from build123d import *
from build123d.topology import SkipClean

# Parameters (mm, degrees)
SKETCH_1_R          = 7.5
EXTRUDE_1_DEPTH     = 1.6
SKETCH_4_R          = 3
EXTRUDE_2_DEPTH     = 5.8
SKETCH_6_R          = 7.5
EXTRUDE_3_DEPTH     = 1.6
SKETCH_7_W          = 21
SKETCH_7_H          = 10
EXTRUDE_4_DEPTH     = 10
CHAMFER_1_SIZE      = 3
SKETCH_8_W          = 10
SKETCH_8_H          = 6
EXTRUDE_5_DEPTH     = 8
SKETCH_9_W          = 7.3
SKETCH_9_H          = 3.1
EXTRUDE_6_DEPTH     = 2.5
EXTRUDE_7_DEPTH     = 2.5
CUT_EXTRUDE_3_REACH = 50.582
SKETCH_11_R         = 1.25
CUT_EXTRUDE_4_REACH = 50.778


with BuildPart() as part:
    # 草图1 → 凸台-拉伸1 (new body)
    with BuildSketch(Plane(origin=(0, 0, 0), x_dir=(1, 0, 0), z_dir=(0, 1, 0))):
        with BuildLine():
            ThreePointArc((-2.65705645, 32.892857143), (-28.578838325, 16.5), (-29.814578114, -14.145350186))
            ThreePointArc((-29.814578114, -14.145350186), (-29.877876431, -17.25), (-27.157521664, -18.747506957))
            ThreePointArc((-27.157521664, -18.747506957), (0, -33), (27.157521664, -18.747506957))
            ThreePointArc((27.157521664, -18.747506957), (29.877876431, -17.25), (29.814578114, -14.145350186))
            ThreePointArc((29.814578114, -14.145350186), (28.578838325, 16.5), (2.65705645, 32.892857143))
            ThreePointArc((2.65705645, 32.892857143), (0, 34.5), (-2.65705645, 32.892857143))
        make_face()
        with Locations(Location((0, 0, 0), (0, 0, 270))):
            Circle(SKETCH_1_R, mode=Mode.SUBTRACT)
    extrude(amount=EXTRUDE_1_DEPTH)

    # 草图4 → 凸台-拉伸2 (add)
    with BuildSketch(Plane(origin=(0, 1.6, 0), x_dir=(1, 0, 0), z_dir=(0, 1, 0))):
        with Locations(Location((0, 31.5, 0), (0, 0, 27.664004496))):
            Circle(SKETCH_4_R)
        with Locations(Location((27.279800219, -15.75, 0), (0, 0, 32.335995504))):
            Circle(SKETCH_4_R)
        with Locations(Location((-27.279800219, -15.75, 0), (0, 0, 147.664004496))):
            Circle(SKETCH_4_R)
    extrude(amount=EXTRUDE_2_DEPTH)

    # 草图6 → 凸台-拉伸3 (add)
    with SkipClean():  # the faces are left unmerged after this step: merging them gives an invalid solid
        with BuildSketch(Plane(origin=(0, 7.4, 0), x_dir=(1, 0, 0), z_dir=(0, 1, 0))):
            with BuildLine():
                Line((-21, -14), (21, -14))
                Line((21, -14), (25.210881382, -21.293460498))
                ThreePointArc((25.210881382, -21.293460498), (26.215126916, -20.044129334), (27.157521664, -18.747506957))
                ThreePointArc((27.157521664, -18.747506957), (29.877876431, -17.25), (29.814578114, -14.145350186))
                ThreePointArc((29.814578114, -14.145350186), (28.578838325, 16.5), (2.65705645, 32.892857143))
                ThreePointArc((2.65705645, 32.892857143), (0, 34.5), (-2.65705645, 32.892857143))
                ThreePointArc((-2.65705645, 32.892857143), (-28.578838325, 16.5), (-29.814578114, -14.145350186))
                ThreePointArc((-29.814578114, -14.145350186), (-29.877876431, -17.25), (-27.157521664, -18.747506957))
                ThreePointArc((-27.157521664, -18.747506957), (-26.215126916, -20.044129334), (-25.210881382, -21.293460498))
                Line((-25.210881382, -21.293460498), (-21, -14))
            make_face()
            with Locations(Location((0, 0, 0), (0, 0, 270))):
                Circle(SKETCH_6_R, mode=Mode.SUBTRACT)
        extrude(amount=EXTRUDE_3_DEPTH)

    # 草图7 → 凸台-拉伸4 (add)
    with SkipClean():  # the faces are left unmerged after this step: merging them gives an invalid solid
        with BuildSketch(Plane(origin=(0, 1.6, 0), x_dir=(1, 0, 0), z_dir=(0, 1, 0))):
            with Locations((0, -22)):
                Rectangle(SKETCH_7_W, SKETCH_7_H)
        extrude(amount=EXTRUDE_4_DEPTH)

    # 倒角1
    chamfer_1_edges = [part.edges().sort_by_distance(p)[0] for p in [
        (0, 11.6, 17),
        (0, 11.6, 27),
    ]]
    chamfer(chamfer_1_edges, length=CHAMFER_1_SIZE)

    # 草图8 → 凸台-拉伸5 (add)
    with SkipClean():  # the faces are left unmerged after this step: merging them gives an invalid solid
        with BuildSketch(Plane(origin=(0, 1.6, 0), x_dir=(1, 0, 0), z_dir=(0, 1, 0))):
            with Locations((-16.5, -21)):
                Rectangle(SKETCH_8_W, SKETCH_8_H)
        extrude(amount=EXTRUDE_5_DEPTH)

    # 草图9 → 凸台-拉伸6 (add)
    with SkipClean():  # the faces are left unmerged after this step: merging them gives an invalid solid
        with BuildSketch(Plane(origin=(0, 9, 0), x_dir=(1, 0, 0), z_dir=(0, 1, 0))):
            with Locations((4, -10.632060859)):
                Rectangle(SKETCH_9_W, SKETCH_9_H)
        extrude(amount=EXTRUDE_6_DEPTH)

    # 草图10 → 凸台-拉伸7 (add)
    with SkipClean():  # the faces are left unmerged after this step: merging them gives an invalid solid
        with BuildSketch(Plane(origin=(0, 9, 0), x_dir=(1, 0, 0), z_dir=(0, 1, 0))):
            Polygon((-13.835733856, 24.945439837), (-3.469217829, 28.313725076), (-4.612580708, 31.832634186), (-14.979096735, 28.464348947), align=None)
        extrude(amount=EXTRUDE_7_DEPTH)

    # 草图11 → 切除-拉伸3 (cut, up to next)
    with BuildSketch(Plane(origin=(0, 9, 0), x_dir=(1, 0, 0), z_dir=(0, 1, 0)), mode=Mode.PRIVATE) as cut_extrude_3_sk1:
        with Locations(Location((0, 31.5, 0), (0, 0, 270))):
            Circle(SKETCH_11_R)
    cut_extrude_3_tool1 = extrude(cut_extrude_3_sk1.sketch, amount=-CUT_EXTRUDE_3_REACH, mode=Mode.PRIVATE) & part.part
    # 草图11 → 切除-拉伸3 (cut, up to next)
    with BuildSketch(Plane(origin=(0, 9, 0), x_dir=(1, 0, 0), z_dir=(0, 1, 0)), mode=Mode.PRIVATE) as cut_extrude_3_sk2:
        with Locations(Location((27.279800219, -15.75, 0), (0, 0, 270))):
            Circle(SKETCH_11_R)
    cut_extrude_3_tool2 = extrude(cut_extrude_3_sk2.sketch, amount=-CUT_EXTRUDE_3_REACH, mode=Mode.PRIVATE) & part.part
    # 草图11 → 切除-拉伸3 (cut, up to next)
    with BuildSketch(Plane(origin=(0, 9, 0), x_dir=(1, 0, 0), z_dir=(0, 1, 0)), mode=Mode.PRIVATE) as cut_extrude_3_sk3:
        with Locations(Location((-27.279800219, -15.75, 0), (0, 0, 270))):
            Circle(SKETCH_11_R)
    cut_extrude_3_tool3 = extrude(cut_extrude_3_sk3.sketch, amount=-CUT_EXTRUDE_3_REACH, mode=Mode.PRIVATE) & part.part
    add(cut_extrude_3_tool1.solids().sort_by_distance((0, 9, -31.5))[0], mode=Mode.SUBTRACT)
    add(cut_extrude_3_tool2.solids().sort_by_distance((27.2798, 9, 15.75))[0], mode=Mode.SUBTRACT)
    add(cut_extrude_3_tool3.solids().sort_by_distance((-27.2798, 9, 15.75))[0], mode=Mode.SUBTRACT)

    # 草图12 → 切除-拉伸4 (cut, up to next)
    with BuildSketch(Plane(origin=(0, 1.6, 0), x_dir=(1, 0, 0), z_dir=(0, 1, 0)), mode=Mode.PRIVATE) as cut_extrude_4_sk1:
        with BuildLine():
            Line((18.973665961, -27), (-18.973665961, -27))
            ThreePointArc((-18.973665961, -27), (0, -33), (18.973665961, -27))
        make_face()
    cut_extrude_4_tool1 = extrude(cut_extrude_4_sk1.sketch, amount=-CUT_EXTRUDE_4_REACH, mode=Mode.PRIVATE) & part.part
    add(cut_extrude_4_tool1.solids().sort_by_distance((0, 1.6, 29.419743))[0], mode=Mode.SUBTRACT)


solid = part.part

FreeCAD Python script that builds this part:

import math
import FreeCAD as App
import Part
import Sketcher

V = App.Vector
Q = App.Units.Quantity


def edges_at(feature, points):
    """Names of the edges that pass closest to the given points."""
    edges = feature.Shape.Edges
    near = lambda p: min(range(len(edges)), key=lambda i: edges[i].distToShape(Part.Vertex(*p))[0])
    return sorted({f"Edge{near(p) + 1}" for p in points})

doc = App.newDocument("Part")
body = doc.addObject("PartDesign::Body", "Body")

# Sketch on XZ plane
sketch1 = body.newObject("Sketcher::SketchObject", "Sketch")
sketch1.AttachmentSupport = (doc.getObject("XZ_Plane"), [""])
sketch1.MapMode = "FlatFace"
sketch1.addGeometry(Part.ArcOfCircle(Part.Circle(V(0, 0, 0), V(0, 0, 1), 33), math.radians(155), math.radians(265)), False)
sketch1.addGeometry(Part.ArcOfCircle(Part.Circle(V(-27.3, 15.8, 0), V(0, 0, 1), 3), math.radians(88), math.radians(212)), False)
sketch1.addGeometry(Part.ArcOfCircle(Part.Circle(V(0, 0, 0), V(0, 0, 1), 33), math.radians(35), math.radians(145)), False)
sketch1.addGeometry(Part.ArcOfCircle(Part.Circle(V(27.3, 15.8, 0), V(0, 0, 1), 3), math.radians(-32), math.radians(92)), False)
sketch1.addGeometry(Part.ArcOfCircle(Part.Circle(V(0, 0, 0), V(0, 0, 1), 33), math.radians(-85), math.radians(25)), False)
sketch1.addGeometry(Part.ArcOfCircle(Part.Circle(V(0, -31.5, 0), V(0, 0, 1), 3), math.radians(-152), math.radians(-28)), False)
sketch1.addGeometry(Part.Circle(V(0, 0, 0), V(0, 0, 1), 7.5), False)
sketch1.addConstraint(Sketcher.Constraint("Coincident", 0, 1, 1, 2))
sketch1.addConstraint(Sketcher.Constraint("Coincident", 1, 1, 2, 2))
sketch1.addConstraint(Sketcher.Constraint("Coincident", 2, 1, 3, 2))
sketch1.addConstraint(Sketcher.Constraint("Coincident", 3, 1, 4, 2))
sketch1.addConstraint(Sketcher.Constraint("Coincident", 4, 1, 5, 2))
sketch1.addConstraint(Sketcher.Constraint("Coincident", 5, 1, 0, 2))
sketch1.addConstraint(Sketcher.Constraint("Coincident", 0, 3, -1, 1))
sketch1.addConstraint(Sketcher.Constraint("Coincident", 2, 3, -1, 1))
sketch1.addConstraint(Sketcher.Constraint("Coincident", 4, 3, -1, 1))
sketch1.addConstraint(Sketcher.Constraint("Coincident", 6, 3, -1, 1))
sketch1.addConstraint(Sketcher.Constraint("Equal", 0, 2))
sketch1.addConstraint(Sketcher.Constraint("Equal", 1, 3))
sketch1.addConstraint(Sketcher.Constraint("Equal", 2, 4))
sketch1.addConstraint(Sketcher.Constraint("Equal", 3, 5))
sketch1.addConstraint(Sketcher.Constraint("Symmetric", 1, 3, 3, 3, -2))
sketch1.addConstraint(Sketcher.Constraint("PointOnObject", 5, 3, -2))
sketch1.addConstraint(Sketcher.Constraint("Diameter", 6, 15.0))
sketch1.addConstraint(Sketcher.Constraint("Radius", 0, 33.0))
sketch1.addConstraint(Sketcher.Constraint("Radius", 1, 3.0))
sketch1.addConstraint(Sketcher.Constraint("DistanceY", 5, 3, -1, 1, 31.5))
sketch1.addConstraint(Sketcher.Constraint("DistanceY", -1, 1, 1, 3, 15.75))
sketch1.addConstraint(Sketcher.Constraint("DistanceX", 1, 3, -1, 1, 27.2798))
pad1 = body.newObject("PartDesign::Pad", "Pad")
pad1.Profile = sketch1
pad1.Length = 1.6
pad1.Reversed = True

# Sketch on XZ plane
sketch2 = body.newObject("Sketcher::SketchObject", "Sketch001")
sketch2.AttachmentSupport = (doc.getObject("XZ_Plane"), [""])
sketch2.MapMode = "FlatFace"
sketch2.AttachmentOffset = App.Placement(V(0, 0, -1.6), App.Rotation())
sketch2.addGeometry(Part.Circle(V(0, -31.5, 0), V(0, 0, 1), 3), False)
sketch2.addGeometry(Part.Circle(V(27.3, 15.8, 0), V(0, 0, 1), 3), False)
sketch2.addGeometry(Part.Circle(V(-27.3, 15.8, 0), V(0, 0, 1), 3), False)
sketch2.addConstraint(Sketcher.Constraint("Equal", 0, 1))
sketch2.addConstraint(Sketcher.Constraint("Equal", 1, 2))
sketch2.addConstraint(Sketcher.Constraint("Symmetric", 1, 3, 2, 3, -2))
sketch2.addConstraint(Sketcher.Constraint("PointOnObject", 0, 3, -2))
sketch2.addConstraint(Sketcher.Constraint("Diameter", 0, 6.0))
sketch2.addConstraint(Sketcher.Constraint("DistanceY", 0, 3, -1, 1, 31.5))
sketch2.addConstraint(Sketcher.Constraint("DistanceY", -1, 1, 1, 3, 15.75))
sketch2.addConstraint(Sketcher.Constraint("DistanceX", -1, 1, 1, 3, 27.2798))
pad2 = body.newObject("PartDesign::Pad", "Pad001")
pad2.Profile = sketch2
pad2.Length = 5.8
pad2.Reversed = True

# Sketch on XZ plane
sketch3 = body.newObject("Sketcher::SketchObject", "Sketch002")
sketch3.AttachmentSupport = (doc.getObject("XZ_Plane"), [""])
sketch3.MapMode = "FlatFace"
sketch3.AttachmentOffset = App.Placement(V(0, 0, -7.4), App.Rotation())
sketch3.addGeometry(Part.LineSegment(V(-21, 14, 0), V(21, 14, 0)), False)
sketch3.addGeometry(Part.LineSegment(V(21, 14, 0), V(25.2, 21.3, 0)), False)
sketch3.addGeometry(Part.ArcOfCircle(Part.Circle(V(0, 0, 0), V(0, 0, 1), 33), math.radians(34.62), math.radians(40.18)), False)
sketch3.addGeometry(Part.ArcOfCircle(Part.Circle(V(27.3, 15.8, 0), V(0, 0, 1), 3), math.radians(-32), math.radians(92)), False)
sketch3.addGeometry(Part.ArcOfCircle(Part.Circle(V(0, 0, 0), V(0, 0, 1), 33), math.radians(-85), math.radians(25)), False)
sketch3.addGeometry(Part.ArcOfCircle(Part.Circle(V(0, -31.5, 0), V(0, 0, 1), 3), math.radians(-152), math.radians(-28)), False)
sketch3.addGeometry(Part.ArcOfCircle(Part.Circle(V(0, 0, 0), V(0, 0, 1), 33), math.radians(155), math.radians(265)), False)
sketch3.addGeometry(Part.ArcOfCircle(Part.Circle(V(-27.3, 15.8, 0), V(0, 0, 1), 3), math.radians(88), math.radians(212)), False)
sketch3.addGeometry(Part.ArcOfCircle(Part.Circle(V(0, 0, 0), V(0, 0, 1), 33), math.radians(139.82), math.radians(145.38)), False)
sketch3.addGeometry(Part.LineSegment(V(-25.2, 21.3, 0), V(-21, 14, 0)), False)
sketch3.addGeometry(Part.Circle(V(0, 0, 0), V(0, 0, 1), 7.5), False)
sketch3.addConstraint(Sketcher.Constraint("Coincident", 0, 2, 1, 1))
sketch3.addConstraint(Sketcher.Constraint("Coincident", 1, 2, 2, 2))
sketch3.addConstraint(Sketcher.Constraint("Coincident", 2, 1, 3, 2))
sketch3.addConstraint(Sketcher.Constraint("Coincident", 3, 1, 4, 2))
sketch3.addConstraint(Sketcher.Constraint("Coincident", 4, 1, 5, 2))
sketch3.addConstraint(Sketcher.Constraint("Coincident", 5, 1, 6, 2))
sketch3.addConstraint(Sketcher.Constraint("Coincident", 6, 1, 7, 2))
sketch3.addConstraint(Sketcher.Constraint("Coincident", 7, 1, 8, 2))
sketch3.addConstraint(Sketcher.Constraint("Coincident", 8, 1, 9, 1))
sketch3.addConstraint(Sketcher.Constraint("Coincident", 9, 2, 0, 1))
sketch3.addConstraint(Sketcher.Constraint("Horizontal", 0))
sketch3.addConstraint(Sketcher.Constraint("Coincident", 2, 3, -1, 1))
sketch3.addConstraint(Sketcher.Constraint("Coincident", 4, 3, -1, 1))
sketch3.addConstraint(Sketcher.Constraint("Coincident", 6, 3, -1, 1))
sketch3.addConstraint(Sketcher.Constraint("Coincident", 8, 3, -1, 1))
sketch3.addConstraint(Sketcher.Constraint("Coincident", 10, 3, -1, 1))
sketch3.addConstraint(Sketcher.Constraint("Equal", 2, 4))
sketch3.addConstraint(Sketcher.Constraint("Equal", 3, 5))
sketch3.addConstraint(Sketcher.Constraint("Equal", 4, 6))
sketch3.addConstraint(Sketcher.Constraint("Equal", 5, 7))
sketch3.addConstraint(Sketcher.Constraint("Equal", 6, 8))
sketch3.addConstraint(Sketcher.Constraint("Symmetric", 3, 3, 7, 3, -2))
sketch3.addConstraint(Sketcher.Constraint("PointOnObject", 5, 3, -2))
sketch3.addConstraint(Sketcher.Constraint("Horizontal", 1, 2, 8, 1))
sketch3.addConstraint(Sketcher.Constraint("Equal", 1, 9))
sketch3.addConstraint(Sketcher.Constraint("Diameter", 10, 15.0))
sketch3.addConstraint(Sketcher.Constraint("Radius", 2, 33.000001))
sketch3.addConstraint(Sketcher.Constraint("Radius", 3, 3.0))
sketch3.addConstraint(Sketcher.Constraint("DistanceX", 0, 1, 0, 2, 42.0))
sketch3.addConstraint(Sketcher.Constraint("Angle", 1, Q("60 deg")))
sketch3.addConstraint(Sketcher.Constraint("DistanceY", -1, 1, 0, 2, 14.0))
sketch3.addConstraint(Sketcher.Constraint("DistanceY", 5, 3, -1, 1, 31.5))
sketch3.addConstraint(Sketcher.Constraint("DistanceY", -1, 1, 3, 3, 15.75))
sketch3.addConstraint(Sketcher.Constraint("DistanceX", -1, 1, 3, 3, 27.2798))
pad3 = body.newObject("PartDesign::Pad", "Pad002")
pad3.Profile = sketch3
pad3.Length = 1.6
pad3.Reversed = True

# Sketch on XZ plane
sketch4 = body.newObject("Sketcher::SketchObject", "Sketch003")
sketch4.AttachmentSupport = (doc.getObject("XZ_Plane"), [""])
sketch4.MapMode = "FlatFace"
sketch4.AttachmentOffset = App.Placement(V(0, 0, -1.6), App.Rotation())
sketch4.addGeometry(Part.LineSegment(V(-10, 17, 0), V(-10, 27, 0)), False)
sketch4.addGeometry(Part.LineSegment(V(-10, 27, 0), V(10, 27, 0)), False)
sketch4.addGeometry(Part.LineSegment(V(10, 27, 0), V(10, 17, 0)), False)
sketch4.addGeometry(Part.LineSegment(V(10, 17, 0), V(-10, 17, 0)), False)
sketch4.addConstraint(Sketcher.Constraint("Coincident", 0, 2, 1, 1))
sketch4.addConstraint(Sketcher.Constraint("Coincident", 1, 2, 2, 1))
sketch4.addConstraint(Sketcher.Constraint("Coincident", 2, 2, 3, 1))
sketch4.addConstraint(Sketcher.Constraint("Coincident", 3, 2, 0, 1))
sketch4.addConstraint(Sketcher.Constraint("Vertical", 0))
sketch4.addConstraint(Sketcher.Constraint("Horizontal", 1))
sketch4.addConstraint(Sketcher.Constraint("Vertical", 2))
sketch4.addConstraint(Sketcher.Constraint("Horizontal", 3))
sketch4.addConstraint(Sketcher.Constraint("DistanceX", 1, 1, 1, 2, 21.0))
sketch4.addConstraint(Sketcher.Constraint("DistanceY", 0, 1, 0, 2, 10.0))
sketch4.addConstraint(Sketcher.Constraint("DistanceY", -1, 1, 0, 2, 27.0))
sketch4.addConstraint(Sketcher.Constraint("DistanceX", 0, 2, -1, 1, 10.5))
pad4 = body.newObject("PartDesign::Pad", "Pad003")
pad4.Profile = sketch4
pad4.Length = 10
pad4.Reversed = True
doc.recompute()

chamfer = body.newObject("PartDesign::Chamfer", "Chamfer")
chamfer.Base = (pad4, edges_at(pad4, [(0, 11.6, 17), (0, 11.6, 27)]))
chamfer.Size = 3

# Sketch on XZ plane
sketch5 = body.newObject("Sketcher::SketchObject", "Sketch004")
sketch5.AttachmentSupport = (doc.getObject("XZ_Plane"), [""])
sketch5.MapMode = "FlatFace"
sketch5.AttachmentOffset = App.Placement(V(0, 0, -1.6), App.Rotation())
sketch5.addGeometry(Part.LineSegment(V(-22, 18, 0), V(-22, 24, 0)), False)
sketch5.addGeometry(Part.LineSegment(V(-22, 24, 0), V(-12, 24, 0)), False)
sketch5.addGeometry(Part.LineSegment(V(-12, 24, 0), V(-12, 18, 0)), False)
sketch5.addGeometry(Part.LineSegment(V(-12, 18, 0), V(-22, 18, 0)), False)
sketch5.addConstraint(Sketcher.Constraint("Coincident", 0, 2, 1, 1))
sketch5.addConstraint(Sketcher.Constraint("Coincident", 1, 2, 2, 1))
sketch5.addConstraint(Sketcher.Constraint("Coincident", 2, 2, 3, 1))
sketch5.addConstraint(Sketcher.Constraint("Coincident", 3, 2, 0, 1))
sketch5.addConstraint(Sketcher.Constraint("Vertical", 0))
sketch5.addConstraint(Sketcher.Constraint("Horizontal", 1))
sketch5.addConstraint(Sketcher.Constraint("Vertical", 2))
sketch5.addConstraint(Sketcher.Constraint("Horizontal", 3))
sketch5.addConstraint(Sketcher.Constraint("DistanceX", 1, 1, 1, 2, 10.0))
sketch5.addConstraint(Sketcher.Constraint("DistanceY", 0, 1, 0, 2, 6.0))
sketch5.addConstraint(Sketcher.Constraint("DistanceY", -1, 1, 0, 2, 24.0))
sketch5.addConstraint(Sketcher.Constraint("DistanceX", 0, 2, -1, 1, 21.5))
pad5 = body.newObject("PartDesign::Pad", "Pad004")
pad5.Profile = sketch5
pad5.Length = 8
pad5.Reversed = True

# Sketch on XZ plane
sketch6 = body.newObject("Sketcher::SketchObject", "Sketch005")
sketch6.AttachmentSupport = (doc.getObject("XZ_Plane"), [""])
sketch6.MapMode = "FlatFace"
sketch6.AttachmentOffset = App.Placement(V(0, 0, -9), App.Rotation())
sketch6.addGeometry(Part.LineSegment(V(0.3, 9.1, 0), V(0.3, 12.2, 0)), False)
sketch6.addGeometry(Part.LineSegment(V(0.3, 12.2, 0), V(7.7, 12.2, 0)), False)
sketch6.addGeometry(Part.LineSegment(V(7.7, 12.2, 0), V(7.7, 9.1, 0)), False)
sketch6.addGeometry(Part.LineSegment(V(7.7, 9.1, 0), V(0.3, 9.1, 0)), False)
sketch6.addConstraint(Sketcher.Constraint("Coincident", 0, 2, 1, 1))
sketch6.addConstraint(Sketcher.Constraint("Coincident", 1, 2, 2, 1))
sketch6.addConstraint(Sketcher.Constraint("Coincident", 2, 2, 3, 1))
sketch6.addConstraint(Sketcher.Constraint("Coincident", 3, 2, 0, 1))
sketch6.addConstraint(Sketcher.Constraint("Vertical", 0))
sketch6.addConstraint(Sketcher.Constraint("Horizontal", 1))
sketch6.addConstraint(Sketcher.Constraint("Vertical", 2))
sketch6.addConstraint(Sketcher.Constraint("Horizontal", 3))
sketch6.addConstraint(Sketcher.Constraint("DistanceX", 1, 1, 1, 2, 7.3))
sketch6.addConstraint(Sketcher.Constraint("DistanceY", 0, 1, 0, 2, 3.1))
sketch6.addConstraint(Sketcher.Constraint("DistanceX", -1, 1, 0, 2, 0.35))
sketch6.addConstraint(Sketcher.Constraint("DistanceY", -1, 1, 0, 2, 12.182061))
pad6 = body.newObject("PartDesign::Pad", "Pad005")
pad6.Profile = sketch6
pad6.Length = 2.5
pad6.Reversed = True

# Sketch on XZ plane
sketch7 = body.newObject("Sketcher::SketchObject", "Sketch006")
sketch7.AttachmentSupport = (doc.getObject("XZ_Plane"), [""])
sketch7.MapMode = "FlatFace"
sketch7.AttachmentOffset = App.Placement(V(0, 0, -9), App.Rotation())
sketch7.addGeometry(Part.LineSegment(V(-13.8, -24.9, 0), V(-3.5, -28.3, 0)), False)
sketch7.addGeometry(Part.LineSegment(V(-3.5, -28.3, 0), V(-4.6, -31.8, 0)), False)
sketch7.addGeometry(Part.LineSegment(V(-4.6, -31.8, 0), V(-15, -28.5, 0)), False)
sketch7.addGeometry(Part.LineSegment(V(-15, -28.5, 0), V(-13.8, -24.9, 0)), False)
sketch7.addConstraint(Sketcher.Constraint("Coincident", 0, 2, 1, 1))
sketch7.addConstraint(Sketcher.Constraint("Coincident", 1, 2, 2, 1))
sketch7.addConstraint(Sketcher.Constraint("Coincident", 2, 2, 3, 1))
sketch7.addConstraint(Sketcher.Constraint("Coincident", 3, 2, 0, 1))
sketch7.addConstraint(Sketcher.Constraint("Perpendicular", 0, 1))
sketch7.addConstraint(Sketcher.Constraint("Perpendicular", 1, 2))
sketch7.addConstraint(Sketcher.Constraint("Perpendicular", 2, 3))
sketch7.addConstraint(Sketcher.Constraint("Angle", 0, Q("-18 deg")))
sketch7.addConstraint(Sketcher.Constraint("Distance", 0, 10.9))
sketch7.addConstraint(Sketcher.Constraint("Distance", 1, 3.7))
sketch7.addConstraint(Sketcher.Constraint("DistanceX", 1, 2, -1, 1, 4.612581))
sketch7.addConstraint(Sketcher.Constraint("DistanceY", 2, 2, -1, 1, 28.464349))
pad7 = body.newObject("PartDesign::Pad", "Pad006")
pad7.Profile = sketch7
pad7.Length = 2.5
pad7.Reversed = True

# Sketch on XZ plane
sketch8 = body.newObject("Sketcher::SketchObject", "Sketch007")
sketch8.AttachmentSupport = (doc.getObject("XZ_Plane"), [""])
sketch8.MapMode = "FlatFace"
sketch8.AttachmentOffset = App.Placement(V(0, 0, -9), App.Rotation())
sketch8.addGeometry(Part.Circle(V(0, -31.5, 0), V(0, 0, 1), 1.2), False)
sketch8.addConstraint(Sketcher.Constraint("PointOnObject", 0, 3, -2))
sketch8.addConstraint(Sketcher.Constraint("Diameter", 0, 2.5))
sketch8.addConstraint(Sketcher.Constraint("DistanceY", 0, 3, -1, 1, 31.5))
pocket1 = body.newObject("PartDesign::Pocket", "Pocket")
pocket1.Profile = sketch8
pocket1.Type = "UpToFirst"
pocket1.Reversed = True

# Sketch on XZ plane
sketch9 = body.newObject("Sketcher::SketchObject", "Sketch008")
sketch9.AttachmentSupport = (doc.getObject("XZ_Plane"), [""])
sketch9.MapMode = "FlatFace"
sketch9.AttachmentOffset = App.Placement(V(0, 0, -9), App.Rotation())
sketch9.addGeometry(Part.Circle(V(27.3, 15.8, 0), V(0, 0, 1), 1.2), False)
sketch9.addConstraint(Sketcher.Constraint("Diameter", 0, 2.5))
sketch9.addConstraint(Sketcher.Constraint("DistanceY", -1, 1, 0, 3, 15.75))
sketch9.addConstraint(Sketcher.Constraint("DistanceX", -1, 1, 0, 3, 27.2798))
pocket2 = body.newObject("PartDesign::Pocket", "Pocket001")
pocket2.Profile = sketch9
pocket2.Type = "UpToFirst"
pocket2.Reversed = True

# Sketch on XZ plane
sketch10 = body.newObject("Sketcher::SketchObject", "Sketch009")
sketch10.AttachmentSupport = (doc.getObject("XZ_Plane"), [""])
sketch10.MapMode = "FlatFace"
sketch10.AttachmentOffset = App.Placement(V(0, 0, -9), App.Rotation())
sketch10.addGeometry(Part.Circle(V(-27.3, 15.8, 0), V(0, 0, 1), 1.2), False)
sketch10.addConstraint(Sketcher.Constraint("Diameter", 0, 2.5))
sketch10.addConstraint(Sketcher.Constraint("DistanceY", -1, 1, 0, 3, 15.75))
sketch10.addConstraint(Sketcher.Constraint("DistanceX", 0, 3, -1, 1, 27.2798))
pocket3 = body.newObject("PartDesign::Pocket", "Pocket002")
pocket3.Profile = sketch10
pocket3.Type = "UpToFirst"
pocket3.Reversed = True

# Sketch on XZ plane
sketch11 = body.newObject("Sketcher::SketchObject", "Sketch010")
sketch11.AttachmentSupport = (doc.getObject("XZ_Plane"), [""])
sketch11.MapMode = "FlatFace"
sketch11.AttachmentOffset = App.Placement(V(0, 0, -1.6), App.Rotation())
sketch11.addGeometry(Part.LineSegment(V(19, 27, 0), V(-19, 27, 0)), False)
sketch11.addGeometry(Part.ArcOfCircle(Part.Circle(V(0, 0, 0), V(0, 0, 1), 33), math.radians(55), math.radians(125)), False)
sketch11.addConstraint(Sketcher.Constraint("Coincident", 0, 1, 1, 1))
sketch11.addConstraint(Sketcher.Constraint("Coincident", 1, 2, 0, 2))
sketch11.addConstraint(Sketcher.Constraint("Horizontal", 0))
sketch11.addConstraint(Sketcher.Constraint("Coincident", 1, 3, -1, 1))
sketch11.addConstraint(Sketcher.Constraint("Radius", 1, 33.0))
sketch11.addConstraint(Sketcher.Constraint("DistanceY", -1, 1, 0, 1, 27.0))
pocket4 = body.newObject("PartDesign::Pocket", "Pocket003")
pocket4.Profile = sketch11
pocket4.Type = "UpToFirst"
pocket4.Reversed = True

doc.recompute()
